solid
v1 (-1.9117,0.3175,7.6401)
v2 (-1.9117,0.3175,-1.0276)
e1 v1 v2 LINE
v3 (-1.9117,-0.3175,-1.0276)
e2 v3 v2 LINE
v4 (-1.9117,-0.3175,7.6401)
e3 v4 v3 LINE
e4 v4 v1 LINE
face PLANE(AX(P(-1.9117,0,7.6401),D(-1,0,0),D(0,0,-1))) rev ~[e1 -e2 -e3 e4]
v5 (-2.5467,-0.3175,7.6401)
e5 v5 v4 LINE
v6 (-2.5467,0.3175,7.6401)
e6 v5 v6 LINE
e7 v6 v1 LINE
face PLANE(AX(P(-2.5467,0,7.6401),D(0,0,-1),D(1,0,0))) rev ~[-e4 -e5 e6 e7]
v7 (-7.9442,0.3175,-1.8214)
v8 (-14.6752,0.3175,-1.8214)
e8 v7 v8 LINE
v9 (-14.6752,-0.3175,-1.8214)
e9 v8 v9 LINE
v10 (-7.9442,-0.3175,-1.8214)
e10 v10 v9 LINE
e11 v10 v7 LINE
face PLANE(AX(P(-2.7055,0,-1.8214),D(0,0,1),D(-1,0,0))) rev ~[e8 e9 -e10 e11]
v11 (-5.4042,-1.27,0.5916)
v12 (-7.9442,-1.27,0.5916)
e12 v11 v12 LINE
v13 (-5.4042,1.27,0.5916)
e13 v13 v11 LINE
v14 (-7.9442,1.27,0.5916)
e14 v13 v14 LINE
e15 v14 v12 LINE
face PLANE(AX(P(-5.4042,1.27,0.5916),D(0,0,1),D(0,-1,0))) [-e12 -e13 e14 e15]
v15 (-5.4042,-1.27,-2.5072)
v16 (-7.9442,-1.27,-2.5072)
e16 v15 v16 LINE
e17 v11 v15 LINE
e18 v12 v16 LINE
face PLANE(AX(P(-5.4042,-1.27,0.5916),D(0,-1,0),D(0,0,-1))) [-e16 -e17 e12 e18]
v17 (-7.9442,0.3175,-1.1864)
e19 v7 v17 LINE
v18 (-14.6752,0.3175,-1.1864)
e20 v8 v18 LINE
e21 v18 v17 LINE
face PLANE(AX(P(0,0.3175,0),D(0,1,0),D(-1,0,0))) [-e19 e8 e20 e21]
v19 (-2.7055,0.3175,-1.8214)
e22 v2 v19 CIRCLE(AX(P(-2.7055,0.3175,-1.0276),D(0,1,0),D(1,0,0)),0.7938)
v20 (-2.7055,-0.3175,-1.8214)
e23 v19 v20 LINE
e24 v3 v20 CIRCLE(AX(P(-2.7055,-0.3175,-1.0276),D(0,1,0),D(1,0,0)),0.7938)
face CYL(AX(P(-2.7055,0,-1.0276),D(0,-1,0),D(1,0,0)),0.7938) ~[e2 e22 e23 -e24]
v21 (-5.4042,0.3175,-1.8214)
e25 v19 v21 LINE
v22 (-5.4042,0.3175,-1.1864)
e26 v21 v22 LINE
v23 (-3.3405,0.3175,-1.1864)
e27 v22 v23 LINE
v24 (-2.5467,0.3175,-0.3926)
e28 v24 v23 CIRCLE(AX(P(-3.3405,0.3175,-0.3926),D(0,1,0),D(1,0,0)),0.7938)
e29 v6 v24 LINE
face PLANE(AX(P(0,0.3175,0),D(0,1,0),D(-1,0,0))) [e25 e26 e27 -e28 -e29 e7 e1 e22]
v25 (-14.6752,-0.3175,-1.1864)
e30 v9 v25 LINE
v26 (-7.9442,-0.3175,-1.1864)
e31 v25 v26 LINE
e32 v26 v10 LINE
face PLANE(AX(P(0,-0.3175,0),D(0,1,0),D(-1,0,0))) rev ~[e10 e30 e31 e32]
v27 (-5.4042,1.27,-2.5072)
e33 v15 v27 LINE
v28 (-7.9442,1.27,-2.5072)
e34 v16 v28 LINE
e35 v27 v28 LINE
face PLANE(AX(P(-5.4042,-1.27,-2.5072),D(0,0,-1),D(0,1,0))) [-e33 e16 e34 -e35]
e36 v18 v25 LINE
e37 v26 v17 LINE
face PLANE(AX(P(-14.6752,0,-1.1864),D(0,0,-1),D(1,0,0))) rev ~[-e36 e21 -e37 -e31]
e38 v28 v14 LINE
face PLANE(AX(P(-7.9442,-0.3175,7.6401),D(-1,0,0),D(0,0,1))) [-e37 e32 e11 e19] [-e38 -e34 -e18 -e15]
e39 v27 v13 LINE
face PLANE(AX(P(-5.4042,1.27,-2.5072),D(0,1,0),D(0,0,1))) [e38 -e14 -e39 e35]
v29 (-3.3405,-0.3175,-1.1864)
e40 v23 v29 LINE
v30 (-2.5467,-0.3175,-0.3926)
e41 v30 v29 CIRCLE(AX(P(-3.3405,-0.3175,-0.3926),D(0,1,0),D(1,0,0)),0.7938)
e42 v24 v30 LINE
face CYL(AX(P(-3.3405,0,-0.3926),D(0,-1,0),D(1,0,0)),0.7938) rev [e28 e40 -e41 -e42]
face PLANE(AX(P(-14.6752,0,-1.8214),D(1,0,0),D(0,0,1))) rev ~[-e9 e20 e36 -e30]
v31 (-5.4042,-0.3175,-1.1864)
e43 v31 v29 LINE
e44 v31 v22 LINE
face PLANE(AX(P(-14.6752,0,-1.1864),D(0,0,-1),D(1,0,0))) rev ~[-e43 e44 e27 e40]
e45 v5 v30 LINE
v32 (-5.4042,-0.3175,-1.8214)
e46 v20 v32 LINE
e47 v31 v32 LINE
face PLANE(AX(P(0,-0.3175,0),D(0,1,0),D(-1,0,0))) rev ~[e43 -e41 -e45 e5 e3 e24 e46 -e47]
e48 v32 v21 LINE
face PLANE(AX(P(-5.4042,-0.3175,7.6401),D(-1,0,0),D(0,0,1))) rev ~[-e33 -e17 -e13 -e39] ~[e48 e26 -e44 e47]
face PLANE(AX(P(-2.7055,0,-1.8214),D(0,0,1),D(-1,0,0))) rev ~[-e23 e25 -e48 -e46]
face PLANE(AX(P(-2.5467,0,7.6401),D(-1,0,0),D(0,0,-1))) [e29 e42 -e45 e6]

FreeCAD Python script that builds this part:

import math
import FreeCAD as App
import Part
import Sketcher
Q = App.Units.Quantity


def add_polygon(sketch, points):
    """Adds a closed chain of lines whose ends are joined by coincident constraints."""
    first, n = sketch.GeometryCount, len(points)
    for a, b in zip(points, points[1:] + points[:1]):
        sketch.addGeometry(Part.LineSegment(App.Vector(*a, 0), App.Vector(*b, 0)), False)
    for i in range(n):
        sketch.addConstraint(Sketcher.Constraint("Coincident", first + i, 2, first + (i + 1) % n, 1))

doc = App.newDocument("Part")
body = doc.addObject("PartDesign::Body", "Body")

# Sketch on XZ plane
sketch1 = body.newObject("Sketcher::SketchObject", "Sketch")
sketch1.AttachmentSupport = (doc.getObject("XZ_Plane"), [""])
sketch1.MapMode = "FlatFace"
sketch1.addGeometry([
    Part.LineSegment(App.Vector(-2.5467, -0.3926, 0), App.Vector(-2.5467, 7.6401, 0)),  # 0
    Part.LineSegment(App.Vector(-2.5467, 7.6401, 0), App.Vector(-1.9117, 7.6401, 0)),  # 1
    Part.LineSegment(App.Vector(-1.9117, 7.6401, 0), App.Vector(-1.9117, -1.0276, 0)),  # 2
    Part.ArcOfCircle(Part.Circle(App.Vector(-2.7055, -1.0276, 0), App.Vector(0, 0, 1), 0.7938), math.radians(-90), math.radians(0)),  # 3
    Part.LineSegment(App.Vector(-2.7055, -1.8214, 0), App.Vector(-14.6752, -1.8214, 0)),  # 4
    Part.LineSegment(App.Vector(-14.6752, -1.8214, 0), App.Vector(-14.6752, -1.1864, 0)),  # 5
    Part.LineSegment(App.Vector(-14.6752, -1.1864, 0), App.Vector(-3.3405, -1.1864, 0)),  # 6
    Part.ArcOfCircle(Part.Circle(App.Vector(-3.3405, -0.3926, 0), App.Vector(0, 0, 1), 0.7938), math.radians(-90), math.radians(0)),  # 7
], False)
sketch1.addConstraint([
    Sketcher.Constraint("Coincident", 0, 2, 1, 1),
    Sketcher.Constraint("Coincident", 1, 2, 2, 1),
    Sketcher.Constraint("Tangent", 2, 2, 3, 2),
    Sketcher.Constraint("Tangent", 3, 1, 4, 1),
    Sketcher.Constraint("Coincident", 4, 2, 5, 1),
    Sketcher.Constraint("Coincident", 5, 2, 6, 1),
    Sketcher.Constraint("Tangent", 6, 2, 7, 1),
    Sketcher.Constraint("Tangent", 7, 2, 0, 1),
    Sketcher.Constraint("Vertical", 0),
    Sketcher.Constraint("Horizontal", 1),
    Sketcher.Constraint("Vertical", 2),
    Sketcher.Constraint("Horizontal", 4),
    Sketcher.Constraint("Vertical", 5),
    Sketcher.Constraint("Horizontal", 6),
    Sketcher.Constraint("Equal", 3, 7),
    Sketcher.Constraint("Equal", 1, 5),
    Sketcher.Constraint("Radius", 3, Q("0.031252 in")),
    Sketcher.Constraint("DistanceX", 1, 1, 1, 2, Q("0.025 in")),
    Sketcher.Constraint("DistanceX", 4, 2, 4, 1, 11.9697),
    Sketcher.Constraint("DistanceY", 0, 1, 0, 2, 8.0327),
    Sketcher.Constraint("DistanceY", -1, 1, 0, 2, Q("0.3008 in")),
    Sketcher.Constraint("DistanceX", 3, 3, -1, 1, 2.7055),
])
pad1 = body.newObject("PartDesign::Pad", "Pad")
pad1.Profile = sketch1
pad1.Length = Q("0.025 in")
pad1.Midplane = True

# Sketch on YZ plane
sketch2 = body.newObject("Sketcher::SketchObject", "Sketch001")
sketch2.AttachmentSupport = (doc.getObject("YZ_Plane"), [""])
sketch2.MapMode = "FlatFace"
sketch2.AttachmentOffset = App.Placement(App.Vector(0, 0, -5.4042), App.Rotation())
add_polygon(sketch2, [(-1.27, -2.5072), (-1.27, 0.5916), (1.27, 0.5916), (1.27, -2.5072)])  # lines 0-3
add_polygon(sketch2, [(0.3175, -1.1864), (-0.3175, -1.1864), (-0.3175, -1.8214), (0.3175, -1.8214)])  # lines 4-7
sketch2.addConstraint([
    Sketcher.Constraint("Vertical", 0),
    Sketcher.Constraint("Horizontal", 1),
    Sketcher.Constraint("Vertical", 2),
    Sketcher.Constraint("Horizontal", 3),
    Sketcher.Constraint("Horizontal", 4),
    Sketcher.Constraint("Vertical", 5),
    Sketcher.Constraint("Horizontal", 6),
    Sketcher.Constraint("Vertical", 7),
    Sketcher.Constraint("Equal", 6, 5),
    Sketcher.Constraint("DistanceX", 1, 1, 1, 2, Q("0.1 in")),
    Sketcher.Constraint("DistanceY", 0, 1, 0, 2, Q("0.122 in")),
    Sketcher.Constraint("DistanceY", 4, 2, 0, 2, Q("0.07 in")),
    Sketcher.Constraint("DistanceX", 4, 2, 4, 1, Q("0.025 in")),
    Sketcher.Constraint("DistanceX", 0, 2, -1, 1, Q("0.05 in")),
    Sketcher.Constraint("DistanceX", 4, 2, 2, 2, Q("0.0625 in")),
    Sketcher.Constraint("DistanceY", -1, 1, 0, 2, Q("0.0233 in")),
])
pad2 = body.newObject("PartDesign::Pad", "Pad001")
pad2.Profile = sketch2
pad2.Length = Q("0.1 in")
pad2.Reversed = True

doc.recompute()
